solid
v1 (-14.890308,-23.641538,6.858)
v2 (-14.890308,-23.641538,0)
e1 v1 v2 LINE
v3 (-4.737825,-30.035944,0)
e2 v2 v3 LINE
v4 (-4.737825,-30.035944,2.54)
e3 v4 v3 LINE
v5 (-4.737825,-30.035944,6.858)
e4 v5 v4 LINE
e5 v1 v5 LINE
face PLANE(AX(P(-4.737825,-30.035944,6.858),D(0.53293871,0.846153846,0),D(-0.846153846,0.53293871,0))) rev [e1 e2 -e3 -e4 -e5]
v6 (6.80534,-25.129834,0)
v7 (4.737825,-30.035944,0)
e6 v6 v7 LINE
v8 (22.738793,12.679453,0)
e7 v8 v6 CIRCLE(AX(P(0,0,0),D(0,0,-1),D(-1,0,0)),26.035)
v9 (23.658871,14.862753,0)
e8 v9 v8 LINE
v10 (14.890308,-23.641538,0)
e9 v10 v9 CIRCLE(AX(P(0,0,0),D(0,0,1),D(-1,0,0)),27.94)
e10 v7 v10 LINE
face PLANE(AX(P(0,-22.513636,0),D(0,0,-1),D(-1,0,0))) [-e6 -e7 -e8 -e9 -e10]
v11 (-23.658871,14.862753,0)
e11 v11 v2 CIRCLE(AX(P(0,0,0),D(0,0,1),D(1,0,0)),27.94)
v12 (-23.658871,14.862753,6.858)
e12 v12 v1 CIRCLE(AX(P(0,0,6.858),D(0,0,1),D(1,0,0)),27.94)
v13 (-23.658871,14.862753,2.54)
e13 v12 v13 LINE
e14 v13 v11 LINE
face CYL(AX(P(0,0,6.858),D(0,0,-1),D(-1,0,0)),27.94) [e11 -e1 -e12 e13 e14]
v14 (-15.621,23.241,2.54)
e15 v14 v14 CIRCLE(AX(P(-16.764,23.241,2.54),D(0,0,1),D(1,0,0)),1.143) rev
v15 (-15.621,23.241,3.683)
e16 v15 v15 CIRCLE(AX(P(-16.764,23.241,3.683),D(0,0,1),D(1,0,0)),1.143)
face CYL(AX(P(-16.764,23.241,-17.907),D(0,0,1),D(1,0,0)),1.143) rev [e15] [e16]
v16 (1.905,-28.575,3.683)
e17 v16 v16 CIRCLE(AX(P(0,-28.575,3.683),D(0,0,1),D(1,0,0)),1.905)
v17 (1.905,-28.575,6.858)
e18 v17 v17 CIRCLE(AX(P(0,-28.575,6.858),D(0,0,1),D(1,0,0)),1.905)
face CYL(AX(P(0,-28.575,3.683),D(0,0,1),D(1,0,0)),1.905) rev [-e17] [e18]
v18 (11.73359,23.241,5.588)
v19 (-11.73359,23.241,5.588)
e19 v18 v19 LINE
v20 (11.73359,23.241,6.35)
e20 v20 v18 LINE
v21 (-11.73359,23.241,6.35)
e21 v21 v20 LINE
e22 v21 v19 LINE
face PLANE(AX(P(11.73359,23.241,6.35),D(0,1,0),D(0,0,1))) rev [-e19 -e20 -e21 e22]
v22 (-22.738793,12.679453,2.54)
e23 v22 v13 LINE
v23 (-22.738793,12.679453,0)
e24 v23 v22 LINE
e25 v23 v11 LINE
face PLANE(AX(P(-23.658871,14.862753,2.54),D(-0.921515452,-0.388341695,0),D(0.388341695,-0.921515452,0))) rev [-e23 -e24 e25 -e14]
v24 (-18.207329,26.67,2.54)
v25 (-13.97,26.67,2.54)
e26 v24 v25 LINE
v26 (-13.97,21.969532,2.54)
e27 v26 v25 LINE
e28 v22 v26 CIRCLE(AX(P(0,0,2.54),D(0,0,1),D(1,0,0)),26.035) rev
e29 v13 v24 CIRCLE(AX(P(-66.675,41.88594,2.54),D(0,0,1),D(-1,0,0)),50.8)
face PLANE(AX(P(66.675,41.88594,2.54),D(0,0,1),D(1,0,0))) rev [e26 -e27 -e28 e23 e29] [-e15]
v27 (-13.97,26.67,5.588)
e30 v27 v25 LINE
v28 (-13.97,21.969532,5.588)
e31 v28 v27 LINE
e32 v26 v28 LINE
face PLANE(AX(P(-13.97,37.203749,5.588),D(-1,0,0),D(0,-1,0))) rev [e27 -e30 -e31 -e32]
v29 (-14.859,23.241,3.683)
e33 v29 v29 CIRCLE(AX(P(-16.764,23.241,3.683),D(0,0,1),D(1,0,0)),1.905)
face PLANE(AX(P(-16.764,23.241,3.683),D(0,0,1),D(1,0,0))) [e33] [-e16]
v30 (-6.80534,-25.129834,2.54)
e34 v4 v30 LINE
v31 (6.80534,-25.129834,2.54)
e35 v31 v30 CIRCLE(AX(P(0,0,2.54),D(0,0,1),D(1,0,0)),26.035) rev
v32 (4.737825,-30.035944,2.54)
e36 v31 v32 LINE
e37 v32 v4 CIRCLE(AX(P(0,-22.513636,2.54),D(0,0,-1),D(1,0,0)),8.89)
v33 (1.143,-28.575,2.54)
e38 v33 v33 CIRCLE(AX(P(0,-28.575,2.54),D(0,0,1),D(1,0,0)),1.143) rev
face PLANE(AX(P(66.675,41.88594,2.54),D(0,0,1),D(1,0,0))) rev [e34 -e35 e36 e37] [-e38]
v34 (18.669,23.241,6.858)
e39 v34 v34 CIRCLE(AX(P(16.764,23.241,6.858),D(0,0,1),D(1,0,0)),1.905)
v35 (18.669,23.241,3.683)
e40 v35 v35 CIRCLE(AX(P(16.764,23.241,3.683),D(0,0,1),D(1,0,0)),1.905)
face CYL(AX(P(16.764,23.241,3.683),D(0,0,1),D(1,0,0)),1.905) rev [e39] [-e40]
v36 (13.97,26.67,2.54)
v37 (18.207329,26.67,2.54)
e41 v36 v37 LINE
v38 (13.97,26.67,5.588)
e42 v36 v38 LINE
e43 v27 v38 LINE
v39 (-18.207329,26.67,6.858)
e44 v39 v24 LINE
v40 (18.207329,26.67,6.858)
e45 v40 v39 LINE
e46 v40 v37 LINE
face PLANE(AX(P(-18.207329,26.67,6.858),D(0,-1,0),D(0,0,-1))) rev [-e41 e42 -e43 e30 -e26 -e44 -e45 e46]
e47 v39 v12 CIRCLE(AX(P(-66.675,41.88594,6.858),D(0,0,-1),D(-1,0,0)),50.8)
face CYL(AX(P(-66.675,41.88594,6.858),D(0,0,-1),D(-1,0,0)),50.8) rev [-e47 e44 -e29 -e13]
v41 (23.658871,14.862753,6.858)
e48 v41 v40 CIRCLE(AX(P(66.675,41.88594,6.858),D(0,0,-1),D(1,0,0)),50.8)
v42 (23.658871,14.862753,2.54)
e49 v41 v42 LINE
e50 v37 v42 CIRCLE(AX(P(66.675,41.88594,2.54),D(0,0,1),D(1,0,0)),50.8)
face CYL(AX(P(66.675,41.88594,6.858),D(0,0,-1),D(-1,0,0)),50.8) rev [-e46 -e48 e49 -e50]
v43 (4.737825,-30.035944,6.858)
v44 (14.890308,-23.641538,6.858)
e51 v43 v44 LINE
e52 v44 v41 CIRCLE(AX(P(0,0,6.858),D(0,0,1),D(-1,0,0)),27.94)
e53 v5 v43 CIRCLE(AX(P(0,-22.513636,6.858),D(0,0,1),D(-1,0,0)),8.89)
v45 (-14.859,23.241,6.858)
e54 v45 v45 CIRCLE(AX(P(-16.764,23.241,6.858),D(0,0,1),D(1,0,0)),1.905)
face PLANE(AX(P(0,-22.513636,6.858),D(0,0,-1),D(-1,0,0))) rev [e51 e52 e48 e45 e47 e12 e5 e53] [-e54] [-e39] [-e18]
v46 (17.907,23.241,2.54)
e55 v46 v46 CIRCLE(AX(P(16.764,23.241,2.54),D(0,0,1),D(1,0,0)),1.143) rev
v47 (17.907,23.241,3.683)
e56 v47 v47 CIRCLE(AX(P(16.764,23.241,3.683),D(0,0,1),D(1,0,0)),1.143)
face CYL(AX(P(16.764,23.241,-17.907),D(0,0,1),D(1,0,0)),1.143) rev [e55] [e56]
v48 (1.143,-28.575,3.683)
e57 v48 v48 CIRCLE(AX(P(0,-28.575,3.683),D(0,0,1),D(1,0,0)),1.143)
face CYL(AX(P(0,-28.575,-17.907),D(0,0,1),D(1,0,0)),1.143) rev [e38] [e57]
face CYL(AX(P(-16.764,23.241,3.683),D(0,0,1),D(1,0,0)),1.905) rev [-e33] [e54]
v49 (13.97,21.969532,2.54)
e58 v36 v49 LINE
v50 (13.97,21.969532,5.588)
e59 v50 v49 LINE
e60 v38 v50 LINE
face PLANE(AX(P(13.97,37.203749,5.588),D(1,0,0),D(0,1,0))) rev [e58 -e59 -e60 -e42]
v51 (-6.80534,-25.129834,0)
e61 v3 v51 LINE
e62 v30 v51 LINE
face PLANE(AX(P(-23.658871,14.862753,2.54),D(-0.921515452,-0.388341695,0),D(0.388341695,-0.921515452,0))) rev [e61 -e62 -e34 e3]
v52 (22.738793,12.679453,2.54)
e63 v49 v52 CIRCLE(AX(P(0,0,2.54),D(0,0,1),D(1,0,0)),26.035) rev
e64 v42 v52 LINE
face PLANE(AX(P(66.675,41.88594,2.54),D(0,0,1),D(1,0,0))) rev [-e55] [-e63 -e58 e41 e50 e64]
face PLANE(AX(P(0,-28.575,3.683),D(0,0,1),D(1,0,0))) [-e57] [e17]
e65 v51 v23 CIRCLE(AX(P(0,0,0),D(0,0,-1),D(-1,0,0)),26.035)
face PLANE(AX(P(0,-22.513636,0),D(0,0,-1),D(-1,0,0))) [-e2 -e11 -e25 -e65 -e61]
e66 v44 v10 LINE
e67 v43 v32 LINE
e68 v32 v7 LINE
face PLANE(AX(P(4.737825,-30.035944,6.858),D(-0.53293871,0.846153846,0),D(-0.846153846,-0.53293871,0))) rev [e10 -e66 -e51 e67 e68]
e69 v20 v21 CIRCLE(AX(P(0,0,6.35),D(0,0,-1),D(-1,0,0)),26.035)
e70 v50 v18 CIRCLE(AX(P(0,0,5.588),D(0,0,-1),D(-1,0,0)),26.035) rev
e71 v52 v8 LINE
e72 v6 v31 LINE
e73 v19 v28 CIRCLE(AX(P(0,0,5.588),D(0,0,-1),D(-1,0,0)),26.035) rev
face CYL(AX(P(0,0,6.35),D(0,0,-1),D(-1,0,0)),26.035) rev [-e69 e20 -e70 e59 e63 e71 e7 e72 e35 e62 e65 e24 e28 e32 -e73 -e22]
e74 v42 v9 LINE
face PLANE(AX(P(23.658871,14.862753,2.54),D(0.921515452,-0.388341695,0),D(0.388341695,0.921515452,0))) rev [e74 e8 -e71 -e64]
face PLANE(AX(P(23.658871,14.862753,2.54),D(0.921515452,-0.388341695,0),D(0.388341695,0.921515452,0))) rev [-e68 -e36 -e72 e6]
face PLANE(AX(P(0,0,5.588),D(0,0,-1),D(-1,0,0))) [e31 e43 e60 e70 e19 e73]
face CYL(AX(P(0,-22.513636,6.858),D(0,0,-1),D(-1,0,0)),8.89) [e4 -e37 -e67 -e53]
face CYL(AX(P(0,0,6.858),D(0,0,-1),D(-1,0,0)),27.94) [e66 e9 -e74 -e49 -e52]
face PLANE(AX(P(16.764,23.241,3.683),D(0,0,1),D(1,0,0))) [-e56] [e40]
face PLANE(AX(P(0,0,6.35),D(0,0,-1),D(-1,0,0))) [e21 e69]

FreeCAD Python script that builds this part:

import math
import FreeCAD as App
import Part
import Sketcher
from FreeCAD import Vector
Q = App.Units.Quantity


def add_polygon(sketch, points):
    """Adds a closed chain of lines whose ends are joined by coincident constraints."""
    first, n = sketch.GeometryCount, len(points)
    for a, b in zip(points, points[1:] + points[:1]):
        sketch.addGeometry(Part.LineSegment(App.Vector(*a, 0), App.Vector(*b, 0)), False)
    for i in range(n):
        sketch.addConstraint(Sketcher.Constraint("Coincident", first + i, 2, first + (i + 1) % n, 1))

doc = App.newDocument("Part")
body = doc.addObject("PartDesign::Body", "Body")

sketch1 = body.newObject("Sketcher::SketchObject", "Sketch")
sketch1.AttachmentSupport = (doc.getObject("XY_Plane"), [""])
sketch1.MapMode = "FlatFace"
sketch1.addGeometry([
    Part.LineSegment(Vector(-14.890308, -23.641538, 0), Vector(-4.737825, -30.035944, 0)),
    Part.ArcOfCircle(Part.Circle(Vector(0, -22.513636, 0), Vector(0, 0, 1), 8.89), math.radians(-122.204228), math.radians(-57.795772)),
    Part.LineSegment(Vector(4.737825, -30.035944, 0), Vector(14.890308, -23.641538, 0)),
    Part.ArcOfCircle(Part.Circle(Vector(0, 0, 0), Vector(0, 0, 1), 27.94), math.radians(-57.795772), math.radians(32.137473)),
    Part.ArcOfCircle(Part.Circle(Vector(66.675, 41.88594, 0), Vector(0, 0, 1), 50.8), math.radians(-162.570841), math.radians(-147.862527)),
    Part.LineSegment(Vector(18.207329, 26.67, 0), Vector(-18.207329, 26.67, 0)),
    Part.ArcOfCircle(Part.Circle(Vector(-66.675, 41.88594, 0), Vector(0, 0, 1), 50.8), math.radians(-32.137473), math.radians(-17.429159)),
    Part.ArcOfCircle(Part.Circle(Vector(0, 0, 0), Vector(0, 0, 1), 27.94), math.radians(147.862527), math.radians(237.795772)),
], False)
sketch1.addConstraint([
    Sketcher.Constraint("Tangent", 0, 2, 1, 1),
    Sketcher.Constraint("Tangent", 1, 2, 2, 1),
    Sketcher.Constraint("Tangent", 2, 2, 3, 1),
    Sketcher.Constraint("Tangent", 3, 2, 4, 2),
    Sketcher.Constraint("Coincident", 4, 1, 5, 1),
    Sketcher.Constraint("Coincident", 5, 2, 6, 2),
    Sketcher.Constraint("Tangent", 6, 1, 7, 1),
    Sketcher.Constraint("Tangent", 7, 2, 0, 1),
    Sketcher.Constraint("Horizontal", 5),
    Sketcher.Constraint("Coincident", 3, 3, -1, 1),
    Sketcher.Constraint("Coincident", 7, 3, -1, 1),
    Sketcher.Constraint("Equal", 4, 6),
    Sketcher.Constraint("Equal", 3, 7),
    Sketcher.Constraint("PointOnObject", 1, 3, -2),
    Sketcher.Constraint("Horizontal", 4, 3, 6, 3),
    Sketcher.Constraint("Radius", 4, Q("2 in")),
    Sketcher.Constraint("Radius", 3, Q("1.1 in")),
    Sketcher.Constraint("Radius", 1, Q("0.35 in")),
    Sketcher.Constraint("DistanceY", -1, 1, 4, 1, Q("1.05 in")),
    Sketcher.Constraint("DistanceX", 6, 3, 4, 3, Q("5.25 in")),
    Sketcher.Constraint("Distance", 0, Q("11.998388 mm")),
])
pad1 = body.newObject("PartDesign::Pad", "Pad")
pad1.Profile = sketch1
pad1.Length = Q("0.27 in")

sketch2 = body.newObject("Sketcher::SketchObject", "Sketch001")
sketch2.AttachmentSupport = (doc.getObject("XY_Plane"), [""])
sketch2.MapMode = "FlatFace"
sketch2.addGeometry([
    Part.LineSegment(Vector(-11.73359, 23.241, 0), Vector(11.73359, 23.241, 0)),
    Part.ArcOfCircle(Part.Circle(Vector(0, 0, 0), Vector(0, 0, 1), 26.035), math.radians(116.787657), math.radians(423.212343)),
], False)
sketch2.addConstraint([
    Sketcher.Constraint("Coincident", 0, 1, 1, 1),
    Sketcher.Constraint("Coincident", 1, 2, 0, 2),
    Sketcher.Constraint("Horizontal", 0),
    Sketcher.Constraint("Coincident", 1, 3, -1, 1),
    Sketcher.Constraint("Radius", 1, Q("1.025 in")),
    Sketcher.Constraint("DistanceY", -1, 1, 0, 1, Q("0.915 in")),
])
pocket1 = body.newObject("PartDesign::Pocket", "Pocket")
pocket1.Profile = sketch2
pocket1.Length = Q("0.25 in")
pocket1.Reversed = True

sketch3 = body.newObject("Sketcher::SketchObject", "Sketch002")
sketch3.AttachmentSupport = (doc.getObject("XY_Plane"), [""])
sketch3.MapMode = "FlatFace"
add_polygon(sketch3, [(13.97, 37.203749), (13.97, 11.357806), (-13.97, 11.357806), (-13.97, 37.203749)])
sketch3.addConstraint([
    Sketcher.Constraint("Vertical", 0),
    Sketcher.Constraint("Horizontal", 1),
    Sketcher.Constraint("Vertical", 2),
    Sketcher.Constraint("Horizontal", 3),
    Sketcher.Constraint("DistanceX", 1, 2, 1, 1, Q("1.1 in")),
    Sketcher.Constraint("DistanceX", -1, 1, 0, 2, Q("0.55 in")),
    Sketcher.Constraint("DistanceY", 0, 2, 0, 1, Q("25.845943 mm")),
    Sketcher.Constraint("DistanceY", -1, 1, 2, 2, Q("37.203749 mm")),
])
pocket2 = body.newObject("PartDesign::Pocket", "Pocket001")
pocket2.Profile = sketch3
pocket2.Length = Q("0.22 in")
pocket2.Reversed = True

sketch4 = body.newObject("Sketcher::SketchObject", "Sketch003")
sketch4.AttachmentSupport = (doc.getObject("XY_Plane"), [""])
sketch4.MapMode = "FlatFace"
sketch4.AttachmentOffset = App.Placement(Vector(0, 0, 0.27 * 25.4), App.Rotation())
sketch4.addGeometry([
    Part.Circle(Vector(0, -28.575, 0), Vector(0, 0, 1), 1.905),
    Part.Circle(Vector(-16.764, 23.241, 0), Vector(0, 0, 1), 1.905),
    Part.Circle(Vector(16.764, 23.241, 0), Vector(0, 0, 1), 1.905),
], False)
sketch4.addConstraint([
    Sketcher.Constraint("Equal", 0, 1),
    Sketcher.Constraint("Equal", 1, 2),
    Sketcher.Constraint("Symmetric", 1, 3, 2, 3, -2),
    Sketcher.Constraint("PointOnObject", 0, 3, -2),
    Sketcher.Constraint("Diameter", 0, Q("0.15 in")),
    Sketcher.Constraint("DistanceX", 1, 3, -1, 1, Q("0.66 in")),
    Sketcher.Constraint("DistanceY", 0, 3, 1, 3, Q("2.04 in")),
    Sketcher.Constraint("DistanceY", 0, 3, -1, 1, Q("1.125 in")),
])
pocket3 = body.newObject("PartDesign::Pocket", "Pocket002")
pocket3.Profile = sketch4
pocket3.Length = Q("0.125 in")

sketch5 = body.newObject("Sketcher::SketchObject", "Sketch004")
sketch5.AttachmentSupport = (doc.getObject("XY_Plane"), [""])
sketch5.MapMode = "FlatFace"
sketch5.AttachmentOffset = App.Placement(Vector(0, 0, 0.145 * 25.4), App.Rotation())
sketch5.addGeometry([
    Part.Circle(Vector(-16.764, 23.241, 0), Vector(0, 0, 1), 1.143),
    Part.Circle(Vector(16.764, 23.241, 0), Vector(0, 0, 1), 1.143),
    Part.Circle(Vector(0, -28.575, 0), Vector(0, 0, 1), 1.143),
], False)
sketch5.addConstraint([
    Sketcher.Constraint("Equal", 0, 1),
    Sketcher.Constraint("Equal", 1, 2),
    Sketcher.Constraint("Symmetric", 0, 3, 1, 3, -2),
    Sketcher.Constraint("PointOnObject", 2, 3, -2),
    Sketcher.Constraint("Diameter", 0, Q("0.09 in")),
    Sketcher.Constraint("DistanceX", 0, 3, -1, 1, Q("0.66 in")),
    Sketcher.Constraint("DistanceY", 2, 3, 0, 3, Q("2.04 in")),
    Sketcher.Constraint("DistanceY", -1, 1, 0, 3, Q("0.915 in")),
])
pocket4 = body.newObject("PartDesign::Pocket", "Pocket003")
pocket4.Profile = sketch5
pocket4.Length = Q("0.85 in")

sketch6 = body.newObject("Sketcher::SketchObject", "Sketch005")
sketch6.AttachmentSupport = (doc.getObject("XY_Plane"), [""])
sketch6.MapMode = "FlatFace"
sketch6.addGeometry([
    Part.LineSegment(Vector(23.658871, 14.862753, 0), Vector(4.737825, -30.035944, 0)),
    Part.ArcOfCircle(Part.Circle(Vector(0, -22.513636, 0), Vector(0, 0, 1), 8.89), math.radians(-122.204228), math.radians(-57.795772)),
    Part.LineSegment(Vector(-4.737825, -30.035944, 0), Vector(-23.658871, 14.862753, 0)),
    Part.ArcOfCircle(Part.Circle(Vector(-66.675, 41.88594, 0), Vector(0, 0, 1), 50.8), math.radians(-32.137473), math.radians(-17.429159)),
    Part.LineSegment(Vector(-18.207329, 26.67, 0), Vector(18.207329, 26.67, 0)),
    Part.ArcOfCircle(Part.Circle(Vector(66.675, 41.88594, 0), Vector(0, 0, 1), 50.8), math.radians(-162.570841), math.radians(-147.862527)),
], False)
sketch6.addConstraint([
    Sketcher.Constraint("Coincident", 0, 2, 1, 2),
    Sketcher.Constraint("Coincident", 1, 1, 2, 1),
    Sketcher.Constraint("Coincident", 2, 2, 3, 1),
    Sketcher.Constraint("Coincident", 3, 2, 4, 1),
    Sketcher.Constraint("Coincident", 4, 2, 5, 1),
    Sketcher.Constraint("Coincident", 5, 2, 0, 1),
    Sketcher.Constraint("Horizontal", 4),
    Sketcher.Constraint("Equal", 3, 5),
    Sketcher.Constraint("Symmetric", 3, 3, 5, 3, -2),
    Sketcher.Constraint("Symmetric", 0, 2, 1, 1, -2),
    Sketcher.Constraint("Horizontal", 2, 2, 5, 2),
    Sketcher.Constraint("Radius", 3, Q("2 in")),
    Sketcher.Constraint("Radius", 1, Q("0.35 in")),
    Sketcher.Constraint("DistanceY", -1, 1, 3, 2, Q("1.05 in")),
    Sketcher.Constraint("DistanceX", 3, 3, 5, 3, Q("5.25 in")),
    Sketcher.Constraint("DistanceX", 2, 2, 4, 2, Q("41.8662 mm")),
    Sketcher.Constraint("DistanceX", 4, 1, 4, 2, Q("36.414657 mm")),
    Sketcher.Constraint("DistanceX", 1, 1, 0, 2, Q("9.47565 mm")),
    Sketcher.Constraint("DistanceY", 1, 3, 2, 2, Q("37.376389 mm")),
])
pocket5 = body.newObject("PartDesign::Pocket", "Pocket004")
pocket5.Profile = sketch6
pocket5.Length = Q("0.1 in")
pocket5.Reversed = True

doc.recompute()
